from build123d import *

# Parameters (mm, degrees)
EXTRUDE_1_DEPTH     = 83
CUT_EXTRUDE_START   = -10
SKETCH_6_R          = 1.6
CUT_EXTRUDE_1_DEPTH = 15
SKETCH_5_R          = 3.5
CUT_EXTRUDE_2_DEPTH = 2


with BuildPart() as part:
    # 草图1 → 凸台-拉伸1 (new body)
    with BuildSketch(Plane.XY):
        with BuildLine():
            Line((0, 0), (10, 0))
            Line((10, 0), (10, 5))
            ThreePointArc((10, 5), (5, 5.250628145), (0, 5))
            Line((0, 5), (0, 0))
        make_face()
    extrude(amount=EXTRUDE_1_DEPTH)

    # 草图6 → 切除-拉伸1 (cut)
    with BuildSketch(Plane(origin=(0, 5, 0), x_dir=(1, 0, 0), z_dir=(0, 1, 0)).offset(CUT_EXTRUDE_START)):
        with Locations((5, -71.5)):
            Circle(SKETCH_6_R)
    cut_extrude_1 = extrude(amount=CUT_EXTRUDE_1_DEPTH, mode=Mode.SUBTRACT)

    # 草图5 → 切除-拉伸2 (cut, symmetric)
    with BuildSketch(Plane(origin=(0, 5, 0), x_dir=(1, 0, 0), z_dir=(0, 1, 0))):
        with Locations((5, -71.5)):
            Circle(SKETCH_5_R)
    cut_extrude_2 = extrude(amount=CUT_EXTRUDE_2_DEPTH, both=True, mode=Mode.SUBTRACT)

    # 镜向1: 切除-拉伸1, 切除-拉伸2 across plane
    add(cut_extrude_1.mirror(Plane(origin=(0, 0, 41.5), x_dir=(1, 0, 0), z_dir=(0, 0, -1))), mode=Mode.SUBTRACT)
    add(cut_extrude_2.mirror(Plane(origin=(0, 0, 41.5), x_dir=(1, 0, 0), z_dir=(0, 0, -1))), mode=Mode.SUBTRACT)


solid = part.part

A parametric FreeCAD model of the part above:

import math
import FreeCAD as App
import Part
import Sketcher
from FreeCAD import Vector
Q = App.Units.Quantity

doc = App.newDocument("Part")
body = doc.addObject("PartDesign::Body", "Body")

# Sketch on XY plane
sketch1 = doc.addObject("Sketcher::SketchObject", "Sketch")
body.addObject(sketch1)
sketch1.AttachmentSupport = (doc.XY_Plane, [""])
sketch1.MapMode = "FlatFace"
sketch1.addGeometry([
    Part.LineSegment(Vector(0, 0, 0), Vector(10, 0, 0)),
    Part.LineSegment(Vector(10, 0, 0), Vector(10, 5, 0)),
    Part.ArcOfCircle(Part.Circle(Vector(5, -45, 0), Vector(0, 0, 1), 50), math.radians(84.26), math.radians(95.74)),
    Part.LineSegment(Vector(0, 5, 0), Vector(0, 0, 0)),
], False)
sketch1.addConstraint([
    Sketcher.Constraint("Coincident", 0, 2, 1, 1),
    Sketcher.Constraint("Coincident", 1, 2, 2, 1),
    Sketcher.Constraint("Coincident", 2, 2, 3, 1),
    Sketcher.Constraint("Coincident", 3, 2, 0, 1),
    Sketcher.Constraint("Horizontal", 0),
    Sketcher.Constraint("Vertical", 1),
    Sketcher.Constraint("Vertical", 3),
    Sketcher.Constraint("Coincident", 3, 2, -1, 1),
    Sketcher.Constraint("Horizontal", 1, 2, 2, 2),
    Sketcher.Constraint("Radius", 2, Q("50 mm")),
    Sketcher.Constraint("DistanceX", 0, 1, 0, 2, Q("10 mm")),
    Sketcher.Constraint("DistanceY", 1, 1, 1, 2, Q("5 mm")),
])
pad1 = doc.addObject("PartDesign::Pad", "Pad")
body.addObject(pad1)
pad1.Profile = sketch1
pad1.Length = 83

# Sketch on XZ plane
sketch2 = doc.addObject("Sketcher::SketchObject", "Sketch001")
body.addObject(sketch2)
sketch2.AttachmentSupport = (doc.XZ_Plane, [""])
sketch2.MapMode = "FlatFace"
sketch2.AttachmentOffset = App.Placement(Vector(0, 0, 5), App.Rotation())
sketch2.addGeometry(Part.Circle(Vector(5, 71.5, 0), Vector(0, 0, 1), 1.6), False)
sketch2.addConstraint([
    Sketcher.Constraint("Diameter", 0, Q("3.2 mm")),
    Sketcher.Constraint("DistanceX", -1, 1, 0, 3, Q("5 mm")),
    Sketcher.Constraint("DistanceY", -1, 1, 0, 3, Q("71.5 mm")),
])
pocket1 = doc.addObject("PartDesign::Pocket", "Pocket")
body.addObject(pocket1)
pocket1.Profile = sketch2
pocket1.Length = 15

# Sketch on XZ plane
sketch3 = doc.addObject("Sketcher::SketchObject", "Sketch002")
body.addObject(sketch3)
sketch3.AttachmentSupport = (doc.XZ_Plane, [""])
sketch3.MapMode = "FlatFace"
sketch3.AttachmentOffset = App.Placement(Vector(0, 0, -5), App.Rotation())
sketch3.addGeometry(Part.Circle(Vector(5, 71.5, 0), Vector(0, 0, 1), 3.5), False)
sketch3.addConstraint([
    Sketcher.Constraint("Diameter", 0, Q("7 mm")),
    Sketcher.Constraint("DistanceX", -1, 1, 0, 3, Q("5 mm")),
    Sketcher.Constraint("DistanceY", -1, 1, 0, 3, Q("71.5 mm")),
])
pocket2 = doc.addObject("PartDesign::Pocket", "Pocket001")
body.addObject(pocket2)
pocket2.Profile = sketch3
pocket2.Length = 4
pocket2.Midplane = True
doc.recompute()

datumplane = doc.addObject("PartDesign::Plane", "DatumPlane")
body.addObject(datumplane)
datumplane.AttachmentSupport = (doc.XY_Plane, [""])
datumplane.MapMode = "FlatFace"
datumplane.AttachmentOffset = App.Placement(Vector(0, 0, 41.5), App.Rotation())
mirrored = doc.addObject("PartDesign::Mirrored", "Mirrored")
body.addObject(mirrored)
mirrored.Originals = [pocket1, pocket2]
mirrored.MirrorPlane = (datumplane, [""])
body.Tip = mirrored

doc.recompute()
